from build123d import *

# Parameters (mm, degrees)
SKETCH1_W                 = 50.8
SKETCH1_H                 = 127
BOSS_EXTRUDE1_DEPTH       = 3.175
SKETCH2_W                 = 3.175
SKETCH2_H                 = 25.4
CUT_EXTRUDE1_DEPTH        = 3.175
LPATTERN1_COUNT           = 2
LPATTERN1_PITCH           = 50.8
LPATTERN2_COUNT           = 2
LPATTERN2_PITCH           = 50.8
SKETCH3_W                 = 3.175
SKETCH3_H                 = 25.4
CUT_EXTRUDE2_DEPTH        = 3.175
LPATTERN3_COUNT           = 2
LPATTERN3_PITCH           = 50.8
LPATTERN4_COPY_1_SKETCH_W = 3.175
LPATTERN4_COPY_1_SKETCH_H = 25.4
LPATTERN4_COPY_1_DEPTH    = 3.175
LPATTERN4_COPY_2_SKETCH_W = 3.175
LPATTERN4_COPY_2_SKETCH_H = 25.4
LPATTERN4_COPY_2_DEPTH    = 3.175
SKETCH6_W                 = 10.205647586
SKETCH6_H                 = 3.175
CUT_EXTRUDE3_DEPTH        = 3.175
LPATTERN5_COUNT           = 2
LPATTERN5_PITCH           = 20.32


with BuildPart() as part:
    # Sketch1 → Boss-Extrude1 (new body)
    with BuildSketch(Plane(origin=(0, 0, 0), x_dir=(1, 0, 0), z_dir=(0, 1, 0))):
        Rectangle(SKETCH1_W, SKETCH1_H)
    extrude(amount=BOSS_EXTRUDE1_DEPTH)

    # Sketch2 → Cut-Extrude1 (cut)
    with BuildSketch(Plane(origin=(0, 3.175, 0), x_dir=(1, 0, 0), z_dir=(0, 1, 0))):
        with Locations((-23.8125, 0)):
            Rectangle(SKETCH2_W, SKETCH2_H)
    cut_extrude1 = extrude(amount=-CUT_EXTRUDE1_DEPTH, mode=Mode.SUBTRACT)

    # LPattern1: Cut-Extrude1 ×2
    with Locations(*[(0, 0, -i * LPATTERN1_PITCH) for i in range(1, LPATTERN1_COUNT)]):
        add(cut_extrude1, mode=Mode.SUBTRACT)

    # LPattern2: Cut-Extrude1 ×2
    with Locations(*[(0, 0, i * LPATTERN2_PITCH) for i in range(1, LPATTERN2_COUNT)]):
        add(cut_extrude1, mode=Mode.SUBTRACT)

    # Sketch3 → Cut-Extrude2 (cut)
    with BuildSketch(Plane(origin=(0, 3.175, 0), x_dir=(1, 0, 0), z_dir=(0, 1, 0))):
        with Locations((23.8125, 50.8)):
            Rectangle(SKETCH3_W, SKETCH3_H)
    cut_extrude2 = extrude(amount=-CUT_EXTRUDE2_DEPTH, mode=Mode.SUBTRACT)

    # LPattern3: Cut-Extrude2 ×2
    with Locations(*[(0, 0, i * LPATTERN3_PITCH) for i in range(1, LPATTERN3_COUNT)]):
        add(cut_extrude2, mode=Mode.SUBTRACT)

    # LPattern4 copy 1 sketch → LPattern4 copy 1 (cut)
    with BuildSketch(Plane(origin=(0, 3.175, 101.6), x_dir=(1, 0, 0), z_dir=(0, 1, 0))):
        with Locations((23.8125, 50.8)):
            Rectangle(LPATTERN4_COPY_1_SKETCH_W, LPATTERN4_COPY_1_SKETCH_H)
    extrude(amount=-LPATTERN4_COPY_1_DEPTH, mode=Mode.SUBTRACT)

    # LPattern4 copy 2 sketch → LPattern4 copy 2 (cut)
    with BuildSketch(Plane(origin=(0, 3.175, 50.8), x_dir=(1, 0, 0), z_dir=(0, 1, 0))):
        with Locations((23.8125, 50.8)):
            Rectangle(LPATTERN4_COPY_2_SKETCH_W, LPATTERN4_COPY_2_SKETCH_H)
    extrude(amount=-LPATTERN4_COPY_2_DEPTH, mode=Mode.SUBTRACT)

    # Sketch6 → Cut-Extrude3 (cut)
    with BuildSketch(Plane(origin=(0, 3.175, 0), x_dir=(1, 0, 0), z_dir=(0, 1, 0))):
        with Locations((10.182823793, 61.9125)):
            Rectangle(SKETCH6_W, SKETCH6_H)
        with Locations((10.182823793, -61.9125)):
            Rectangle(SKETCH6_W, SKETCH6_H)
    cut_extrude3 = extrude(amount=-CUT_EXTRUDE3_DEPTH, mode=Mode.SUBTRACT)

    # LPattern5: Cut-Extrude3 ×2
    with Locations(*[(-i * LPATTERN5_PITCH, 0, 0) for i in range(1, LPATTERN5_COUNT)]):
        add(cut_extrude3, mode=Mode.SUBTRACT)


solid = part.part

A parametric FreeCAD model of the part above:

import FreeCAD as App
import Part
import Sketcher
from FreeCAD import Vector
Q = App.Units.Quantity


def add_polygon(sketch, points):
    """Adds a closed chain of lines whose ends are joined by coincident constraints."""
    first, n = sketch.GeometryCount, len(points)
    for a, b in zip(points, points[1:] + points[:1]):
        sketch.addGeometry(Part.LineSegment(App.Vector(*a, 0), App.Vector(*b, 0)), False)
    for i in range(n):
        sketch.addConstraint(Sketcher.Constraint("Coincident", first + i, 2, first + (i + 1) % n, 1))

doc = App.newDocument("Part")
body = doc.addObject("PartDesign::Body", "Body")

sketch1 = body.newObject("Sketcher::SketchObject", "Sketch")
sketch1.AttachmentSupport = (doc.getObject("XZ_Plane"), [""])
sketch1.MapMode = "FlatFace"
add_polygon(sketch1, [(-25.4, -63.5), (-25.4, 63.5), (25.4, 63.5), (25.4, -63.5)])
sketch1.addConstraint(Sketcher.Constraint("Vertical", 0))
sketch1.addConstraint(Sketcher.Constraint("Horizontal", 1))
sketch1.addConstraint(Sketcher.Constraint("Vertical", 2))
sketch1.addConstraint(Sketcher.Constraint("Horizontal", 3))
sketch1.addConstraint(Sketcher.Constraint("Symmetric", 0, 2, 2, 2, -1, 1))
sketch1.addConstraint(Sketcher.Constraint("DistanceX", 1, 1, 1, 2, Q("2 in")))
sketch1.addConstraint(Sketcher.Constraint("DistanceY", 0, 1, 0, 2, Q("5 in")))
pad1 = body.newObject("PartDesign::Pad", "Pad")
pad1.Profile = sketch1
pad1.Length = Q("0.125 in")
pad1.Reversed = True

sketch2 = body.newObject("Sketcher::SketchObject", "Sketch001")
sketch2.AttachmentSupport = (doc.getObject("XZ_Plane"), [""])
sketch2.MapMode = "FlatFace"
sketch2.AttachmentOffset = App.Placement(Vector(0, 0, -0.125 * 25.4), App.Rotation())
add_polygon(sketch2, [(-25.4, -12.7), (-25.4, 12.7), (-22.225, 12.7), (-22.225, -12.7)])
sketch2.addConstraint(Sketcher.Constraint("Vertical", 0))
sketch2.addConstraint(Sketcher.Constraint("Horizontal", 1))
sketch2.addConstraint(Sketcher.Constraint("Vertical", 2))
sketch2.addConstraint(Sketcher.Constraint("Horizontal", 3))
sketch2.addConstraint(Sketcher.Constraint("DistanceY", 0, 1, 0, 2, Q("1 in")))
sketch2.addConstraint(Sketcher.Constraint("DistanceX", 0, 2, -1, 1, Q("1 in")))
sketch2.addConstraint(Sketcher.Constraint("DistanceY", -1, 1, 0, 2, Q("0.5 in")))
sketch2.addConstraint(Sketcher.Constraint("DistanceX", 1, 1, 1, 2, Q("0.125 in")))
pocket1 = body.newObject("PartDesign::Pocket", "Pocket")
pocket1.Profile = sketch2
pocket1.Length = Q("0.125 in")
pocket1.Reversed = True
doc.recompute()

linearpattern = body.newObject("PartDesign::LinearPattern", "LinearPattern")
linearpattern.Originals = [pocket1]
linearpattern.Direction = (doc.getObject("Z_Axis"), [""])
linearpattern.Mode = "offset"
linearpattern.Offset = Q("2 in")
linearpattern.Occurrences = 2
linearpattern.Reversed = True
body.Tip = linearpattern
doc.recompute()

linearpattern2 = body.newObject("PartDesign::LinearPattern", "LinearPattern001")
linearpattern2.Originals = [pocket1]
linearpattern2.Direction = (doc.getObject("Z_Axis"), [""])
linearpattern2.Mode = "offset"
linearpattern2.Offset = Q("2 in")
linearpattern2.Occurrences = 2
body.Tip = linearpattern2

sketch3 = body.newObject("Sketcher::SketchObject", "Sketch002")
sketch3.AttachmentSupport = (doc.getObject("XZ_Plane"), [""])
sketch3.MapMode = "FlatFace"
sketch3.AttachmentOffset = App.Placement(Vector(0, 0, -0.125 * 25.4), App.Rotation())
add_polygon(sketch3, [(22.225, -63.5), (22.225, -38.1), (25.4, -38.1), (25.4, -63.5)])
sketch3.addConstraint(Sketcher.Constraint("Vertical", 0))
sketch3.addConstraint(Sketcher.Constraint("Horizontal", 1))
sketch3.addConstraint(Sketcher.Constraint("Vertical", 2))
sketch3.addConstraint(Sketcher.Constraint("Horizontal", 3))
sketch3.addConstraint(Sketcher.Constraint("DistanceY", 0, 1, 0, 2, Q("1 in")))
sketch3.addConstraint(Sketcher.Constraint("DistanceX", -1, 1, 1, 2, Q("1 in")))
sketch3.addConstraint(Sketcher.Constraint("DistanceY", 0, 2, -1, 1, Q("1.5 in")))
sketch3.addConstraint(Sketcher.Constraint("DistanceX", 1, 1, 1, 2, Q("0.125 in")))
pocket2 = body.newObject("PartDesign::Pocket", "Pocket001")
pocket2.Profile = sketch3
pocket2.Length = Q("0.125 in")
pocket2.Reversed = True
doc.recompute()

linearpattern3 = body.newObject("PartDesign::LinearPattern", "LinearPattern002")
linearpattern3.Originals = [pocket2]
linearpattern3.Direction = (doc.getObject("Z_Axis"), [""])
linearpattern3.Mode = "offset"
linearpattern3.Offset = Q("2 in")
linearpattern3.Occurrences = 2
body.Tip = linearpattern3

sketch4 = body.newObject("Sketcher::SketchObject", "Sketch003")
sketch4.AttachmentSupport = (doc.getObject("XZ_Plane"), [""])
sketch4.MapMode = "FlatFace"
sketch4.AttachmentOffset = App.Placement(Vector(0, 0, -0.125 * 25.4), App.Rotation())
add_polygon(sketch4, [(22.225, 38.1), (22.225, 63.5), (25.4, 63.5), (25.4, 38.1)])
sketch4.addConstraint(Sketcher.Constraint("Vertical", 0))
sketch4.addConstraint(Sketcher.Constraint("Horizontal", 1))
sketch4.addConstraint(Sketcher.Constraint("Vertical", 2))
sketch4.addConstraint(Sketcher.Constraint("Horizontal", 3))
sketch4.addConstraint(Sketcher.Constraint("DistanceY", 0, 1, 0, 2, Q("1 in")))
sketch4.addConstraint(Sketcher.Constraint("DistanceX", -1, 1, 1, 2, Q("1 in")))
sketch4.addConstraint(Sketcher.Constraint("DistanceY", -1, 1, 0, 2, Q("2.5 in")))
sketch4.addConstraint(Sketcher.Constraint("DistanceX", 1, 1, 1, 2, Q("0.125 in")))
pocket3 = body.newObject("PartDesign::Pocket", "Pocket002")
pocket3.Profile = sketch4
pocket3.Length = Q("0.125 in")
pocket3.Reversed = True

sketch5 = body.newObject("Sketcher::SketchObject", "Sketch004")
sketch5.AttachmentSupport = (doc.getObject("XZ_Plane"), [""])
sketch5.MapMode = "FlatFace"
sketch5.AttachmentOffset = App.Placement(Vector(0, 0, -0.125 * 25.4), App.Rotation())
add_polygon(sketch5, [(22.225, -12.7), (22.225, 12.7), (25.4, 12.7), (25.4, -12.7)])
sketch5.addConstraint(Sketcher.Constraint("Vertical", 0))
sketch5.addConstraint(Sketcher.Constraint("Horizontal", 1))
sketch5.addConstraint(Sketcher.Constraint("Vertical", 2))
sketch5.addConstraint(Sketcher.Constraint("Horizontal", 3))
sketch5.addConstraint(Sketcher.Constraint("DistanceY", 0, 1, 0, 2, Q("1 in")))
sketch5.addConstraint(Sketcher.Constraint("DistanceX", -1, 1, 1, 2, Q("1 in")))
sketch5.addConstraint(Sketcher.Constraint("DistanceY", -1, 1, 0, 2, Q("0.5 in")))
sketch5.addConstraint(Sketcher.Constraint("DistanceX", 1, 1, 1, 2, Q("0.125 in")))
pocket4 = body.newObject("PartDesign::Pocket", "Pocket003")
pocket4.Profile = sketch5
pocket4.Length = Q("0.125 in")
pocket4.Reversed = True

sketch6 = body.newObject("Sketcher::SketchObject", "Sketch005")
sketch6.AttachmentSupport = (doc.getObject("XZ_Plane"), [""])
sketch6.MapMode = "FlatFace"
sketch6.AttachmentOffset = App.Placement(Vector(0, 0, -0.125 * 25.4), App.Rotation())
add_polygon(sketch6, [(5.08, -63.5), (5.08, -60.325), (15.285648, -60.325), (15.285648, -63.5)])
add_polygon(sketch6, [(5.08, 60.325), (5.08, 63.5), (15.285648, 63.5), (15.285648, 60.325)])
sketch6.addConstraint(Sketcher.Constraint("Vertical", 0))
sketch6.addConstraint(Sketcher.Constraint("Horizontal", 1))
sketch6.addConstraint(Sketcher.Constraint("Vertical", 2))
sketch6.addConstraint(Sketcher.Constraint("Horizontal", 3))
sketch6.addConstraint(Sketcher.Constraint("Vertical", 4))
sketch6.addConstraint(Sketcher.Constraint("Horizontal", 5))
sketch6.addConstraint(Sketcher.Constraint("Vertical", 6))
sketch6.addConstraint(Sketcher.Constraint("Horizontal", 7))
sketch6.addConstraint(Sketcher.Constraint("Symmetric", 3, 2, 4, 2, -1))
sketch6.addConstraint(Sketcher.Constraint("Symmetric", 1, 2, 6, 2, -1))
sketch6.addConstraint(Sketcher.Constraint("DistanceY", 3, 2, 4, 2, Q("5 in")))
sketch6.addConstraint(Sketcher.Constraint("DistanceX", -1, 1, 0, 2, Q("0.2 in")))
sketch6.addConstraint(Sketcher.Constraint("DistanceY", 0, 1, 0, 2, Q("0.125 in")))
sketch6.addConstraint(Sketcher.Constraint("DistanceX", 1, 1, 1, 2, 10.205648))
pocket5 = body.newObject("PartDesign::Pocket", "Pocket004")
pocket5.Profile = sketch6
pocket5.Length = Q("0.125 in")
pocket5.Reversed = True
doc.recompute()

linearpattern4 = body.newObject("PartDesign::LinearPattern", "LinearPattern003")
linearpattern4.Originals = [pocket5]
linearpattern4.Direction = (doc.getObject("X_Axis"), [""])
linearpattern4.Mode = "offset"
linearpattern4.Offset = Q("0.8 in")
linearpattern4.Occurrences = 2
linearpattern4.Reversed = True
body.Tip = linearpattern4

doc.recompute()
